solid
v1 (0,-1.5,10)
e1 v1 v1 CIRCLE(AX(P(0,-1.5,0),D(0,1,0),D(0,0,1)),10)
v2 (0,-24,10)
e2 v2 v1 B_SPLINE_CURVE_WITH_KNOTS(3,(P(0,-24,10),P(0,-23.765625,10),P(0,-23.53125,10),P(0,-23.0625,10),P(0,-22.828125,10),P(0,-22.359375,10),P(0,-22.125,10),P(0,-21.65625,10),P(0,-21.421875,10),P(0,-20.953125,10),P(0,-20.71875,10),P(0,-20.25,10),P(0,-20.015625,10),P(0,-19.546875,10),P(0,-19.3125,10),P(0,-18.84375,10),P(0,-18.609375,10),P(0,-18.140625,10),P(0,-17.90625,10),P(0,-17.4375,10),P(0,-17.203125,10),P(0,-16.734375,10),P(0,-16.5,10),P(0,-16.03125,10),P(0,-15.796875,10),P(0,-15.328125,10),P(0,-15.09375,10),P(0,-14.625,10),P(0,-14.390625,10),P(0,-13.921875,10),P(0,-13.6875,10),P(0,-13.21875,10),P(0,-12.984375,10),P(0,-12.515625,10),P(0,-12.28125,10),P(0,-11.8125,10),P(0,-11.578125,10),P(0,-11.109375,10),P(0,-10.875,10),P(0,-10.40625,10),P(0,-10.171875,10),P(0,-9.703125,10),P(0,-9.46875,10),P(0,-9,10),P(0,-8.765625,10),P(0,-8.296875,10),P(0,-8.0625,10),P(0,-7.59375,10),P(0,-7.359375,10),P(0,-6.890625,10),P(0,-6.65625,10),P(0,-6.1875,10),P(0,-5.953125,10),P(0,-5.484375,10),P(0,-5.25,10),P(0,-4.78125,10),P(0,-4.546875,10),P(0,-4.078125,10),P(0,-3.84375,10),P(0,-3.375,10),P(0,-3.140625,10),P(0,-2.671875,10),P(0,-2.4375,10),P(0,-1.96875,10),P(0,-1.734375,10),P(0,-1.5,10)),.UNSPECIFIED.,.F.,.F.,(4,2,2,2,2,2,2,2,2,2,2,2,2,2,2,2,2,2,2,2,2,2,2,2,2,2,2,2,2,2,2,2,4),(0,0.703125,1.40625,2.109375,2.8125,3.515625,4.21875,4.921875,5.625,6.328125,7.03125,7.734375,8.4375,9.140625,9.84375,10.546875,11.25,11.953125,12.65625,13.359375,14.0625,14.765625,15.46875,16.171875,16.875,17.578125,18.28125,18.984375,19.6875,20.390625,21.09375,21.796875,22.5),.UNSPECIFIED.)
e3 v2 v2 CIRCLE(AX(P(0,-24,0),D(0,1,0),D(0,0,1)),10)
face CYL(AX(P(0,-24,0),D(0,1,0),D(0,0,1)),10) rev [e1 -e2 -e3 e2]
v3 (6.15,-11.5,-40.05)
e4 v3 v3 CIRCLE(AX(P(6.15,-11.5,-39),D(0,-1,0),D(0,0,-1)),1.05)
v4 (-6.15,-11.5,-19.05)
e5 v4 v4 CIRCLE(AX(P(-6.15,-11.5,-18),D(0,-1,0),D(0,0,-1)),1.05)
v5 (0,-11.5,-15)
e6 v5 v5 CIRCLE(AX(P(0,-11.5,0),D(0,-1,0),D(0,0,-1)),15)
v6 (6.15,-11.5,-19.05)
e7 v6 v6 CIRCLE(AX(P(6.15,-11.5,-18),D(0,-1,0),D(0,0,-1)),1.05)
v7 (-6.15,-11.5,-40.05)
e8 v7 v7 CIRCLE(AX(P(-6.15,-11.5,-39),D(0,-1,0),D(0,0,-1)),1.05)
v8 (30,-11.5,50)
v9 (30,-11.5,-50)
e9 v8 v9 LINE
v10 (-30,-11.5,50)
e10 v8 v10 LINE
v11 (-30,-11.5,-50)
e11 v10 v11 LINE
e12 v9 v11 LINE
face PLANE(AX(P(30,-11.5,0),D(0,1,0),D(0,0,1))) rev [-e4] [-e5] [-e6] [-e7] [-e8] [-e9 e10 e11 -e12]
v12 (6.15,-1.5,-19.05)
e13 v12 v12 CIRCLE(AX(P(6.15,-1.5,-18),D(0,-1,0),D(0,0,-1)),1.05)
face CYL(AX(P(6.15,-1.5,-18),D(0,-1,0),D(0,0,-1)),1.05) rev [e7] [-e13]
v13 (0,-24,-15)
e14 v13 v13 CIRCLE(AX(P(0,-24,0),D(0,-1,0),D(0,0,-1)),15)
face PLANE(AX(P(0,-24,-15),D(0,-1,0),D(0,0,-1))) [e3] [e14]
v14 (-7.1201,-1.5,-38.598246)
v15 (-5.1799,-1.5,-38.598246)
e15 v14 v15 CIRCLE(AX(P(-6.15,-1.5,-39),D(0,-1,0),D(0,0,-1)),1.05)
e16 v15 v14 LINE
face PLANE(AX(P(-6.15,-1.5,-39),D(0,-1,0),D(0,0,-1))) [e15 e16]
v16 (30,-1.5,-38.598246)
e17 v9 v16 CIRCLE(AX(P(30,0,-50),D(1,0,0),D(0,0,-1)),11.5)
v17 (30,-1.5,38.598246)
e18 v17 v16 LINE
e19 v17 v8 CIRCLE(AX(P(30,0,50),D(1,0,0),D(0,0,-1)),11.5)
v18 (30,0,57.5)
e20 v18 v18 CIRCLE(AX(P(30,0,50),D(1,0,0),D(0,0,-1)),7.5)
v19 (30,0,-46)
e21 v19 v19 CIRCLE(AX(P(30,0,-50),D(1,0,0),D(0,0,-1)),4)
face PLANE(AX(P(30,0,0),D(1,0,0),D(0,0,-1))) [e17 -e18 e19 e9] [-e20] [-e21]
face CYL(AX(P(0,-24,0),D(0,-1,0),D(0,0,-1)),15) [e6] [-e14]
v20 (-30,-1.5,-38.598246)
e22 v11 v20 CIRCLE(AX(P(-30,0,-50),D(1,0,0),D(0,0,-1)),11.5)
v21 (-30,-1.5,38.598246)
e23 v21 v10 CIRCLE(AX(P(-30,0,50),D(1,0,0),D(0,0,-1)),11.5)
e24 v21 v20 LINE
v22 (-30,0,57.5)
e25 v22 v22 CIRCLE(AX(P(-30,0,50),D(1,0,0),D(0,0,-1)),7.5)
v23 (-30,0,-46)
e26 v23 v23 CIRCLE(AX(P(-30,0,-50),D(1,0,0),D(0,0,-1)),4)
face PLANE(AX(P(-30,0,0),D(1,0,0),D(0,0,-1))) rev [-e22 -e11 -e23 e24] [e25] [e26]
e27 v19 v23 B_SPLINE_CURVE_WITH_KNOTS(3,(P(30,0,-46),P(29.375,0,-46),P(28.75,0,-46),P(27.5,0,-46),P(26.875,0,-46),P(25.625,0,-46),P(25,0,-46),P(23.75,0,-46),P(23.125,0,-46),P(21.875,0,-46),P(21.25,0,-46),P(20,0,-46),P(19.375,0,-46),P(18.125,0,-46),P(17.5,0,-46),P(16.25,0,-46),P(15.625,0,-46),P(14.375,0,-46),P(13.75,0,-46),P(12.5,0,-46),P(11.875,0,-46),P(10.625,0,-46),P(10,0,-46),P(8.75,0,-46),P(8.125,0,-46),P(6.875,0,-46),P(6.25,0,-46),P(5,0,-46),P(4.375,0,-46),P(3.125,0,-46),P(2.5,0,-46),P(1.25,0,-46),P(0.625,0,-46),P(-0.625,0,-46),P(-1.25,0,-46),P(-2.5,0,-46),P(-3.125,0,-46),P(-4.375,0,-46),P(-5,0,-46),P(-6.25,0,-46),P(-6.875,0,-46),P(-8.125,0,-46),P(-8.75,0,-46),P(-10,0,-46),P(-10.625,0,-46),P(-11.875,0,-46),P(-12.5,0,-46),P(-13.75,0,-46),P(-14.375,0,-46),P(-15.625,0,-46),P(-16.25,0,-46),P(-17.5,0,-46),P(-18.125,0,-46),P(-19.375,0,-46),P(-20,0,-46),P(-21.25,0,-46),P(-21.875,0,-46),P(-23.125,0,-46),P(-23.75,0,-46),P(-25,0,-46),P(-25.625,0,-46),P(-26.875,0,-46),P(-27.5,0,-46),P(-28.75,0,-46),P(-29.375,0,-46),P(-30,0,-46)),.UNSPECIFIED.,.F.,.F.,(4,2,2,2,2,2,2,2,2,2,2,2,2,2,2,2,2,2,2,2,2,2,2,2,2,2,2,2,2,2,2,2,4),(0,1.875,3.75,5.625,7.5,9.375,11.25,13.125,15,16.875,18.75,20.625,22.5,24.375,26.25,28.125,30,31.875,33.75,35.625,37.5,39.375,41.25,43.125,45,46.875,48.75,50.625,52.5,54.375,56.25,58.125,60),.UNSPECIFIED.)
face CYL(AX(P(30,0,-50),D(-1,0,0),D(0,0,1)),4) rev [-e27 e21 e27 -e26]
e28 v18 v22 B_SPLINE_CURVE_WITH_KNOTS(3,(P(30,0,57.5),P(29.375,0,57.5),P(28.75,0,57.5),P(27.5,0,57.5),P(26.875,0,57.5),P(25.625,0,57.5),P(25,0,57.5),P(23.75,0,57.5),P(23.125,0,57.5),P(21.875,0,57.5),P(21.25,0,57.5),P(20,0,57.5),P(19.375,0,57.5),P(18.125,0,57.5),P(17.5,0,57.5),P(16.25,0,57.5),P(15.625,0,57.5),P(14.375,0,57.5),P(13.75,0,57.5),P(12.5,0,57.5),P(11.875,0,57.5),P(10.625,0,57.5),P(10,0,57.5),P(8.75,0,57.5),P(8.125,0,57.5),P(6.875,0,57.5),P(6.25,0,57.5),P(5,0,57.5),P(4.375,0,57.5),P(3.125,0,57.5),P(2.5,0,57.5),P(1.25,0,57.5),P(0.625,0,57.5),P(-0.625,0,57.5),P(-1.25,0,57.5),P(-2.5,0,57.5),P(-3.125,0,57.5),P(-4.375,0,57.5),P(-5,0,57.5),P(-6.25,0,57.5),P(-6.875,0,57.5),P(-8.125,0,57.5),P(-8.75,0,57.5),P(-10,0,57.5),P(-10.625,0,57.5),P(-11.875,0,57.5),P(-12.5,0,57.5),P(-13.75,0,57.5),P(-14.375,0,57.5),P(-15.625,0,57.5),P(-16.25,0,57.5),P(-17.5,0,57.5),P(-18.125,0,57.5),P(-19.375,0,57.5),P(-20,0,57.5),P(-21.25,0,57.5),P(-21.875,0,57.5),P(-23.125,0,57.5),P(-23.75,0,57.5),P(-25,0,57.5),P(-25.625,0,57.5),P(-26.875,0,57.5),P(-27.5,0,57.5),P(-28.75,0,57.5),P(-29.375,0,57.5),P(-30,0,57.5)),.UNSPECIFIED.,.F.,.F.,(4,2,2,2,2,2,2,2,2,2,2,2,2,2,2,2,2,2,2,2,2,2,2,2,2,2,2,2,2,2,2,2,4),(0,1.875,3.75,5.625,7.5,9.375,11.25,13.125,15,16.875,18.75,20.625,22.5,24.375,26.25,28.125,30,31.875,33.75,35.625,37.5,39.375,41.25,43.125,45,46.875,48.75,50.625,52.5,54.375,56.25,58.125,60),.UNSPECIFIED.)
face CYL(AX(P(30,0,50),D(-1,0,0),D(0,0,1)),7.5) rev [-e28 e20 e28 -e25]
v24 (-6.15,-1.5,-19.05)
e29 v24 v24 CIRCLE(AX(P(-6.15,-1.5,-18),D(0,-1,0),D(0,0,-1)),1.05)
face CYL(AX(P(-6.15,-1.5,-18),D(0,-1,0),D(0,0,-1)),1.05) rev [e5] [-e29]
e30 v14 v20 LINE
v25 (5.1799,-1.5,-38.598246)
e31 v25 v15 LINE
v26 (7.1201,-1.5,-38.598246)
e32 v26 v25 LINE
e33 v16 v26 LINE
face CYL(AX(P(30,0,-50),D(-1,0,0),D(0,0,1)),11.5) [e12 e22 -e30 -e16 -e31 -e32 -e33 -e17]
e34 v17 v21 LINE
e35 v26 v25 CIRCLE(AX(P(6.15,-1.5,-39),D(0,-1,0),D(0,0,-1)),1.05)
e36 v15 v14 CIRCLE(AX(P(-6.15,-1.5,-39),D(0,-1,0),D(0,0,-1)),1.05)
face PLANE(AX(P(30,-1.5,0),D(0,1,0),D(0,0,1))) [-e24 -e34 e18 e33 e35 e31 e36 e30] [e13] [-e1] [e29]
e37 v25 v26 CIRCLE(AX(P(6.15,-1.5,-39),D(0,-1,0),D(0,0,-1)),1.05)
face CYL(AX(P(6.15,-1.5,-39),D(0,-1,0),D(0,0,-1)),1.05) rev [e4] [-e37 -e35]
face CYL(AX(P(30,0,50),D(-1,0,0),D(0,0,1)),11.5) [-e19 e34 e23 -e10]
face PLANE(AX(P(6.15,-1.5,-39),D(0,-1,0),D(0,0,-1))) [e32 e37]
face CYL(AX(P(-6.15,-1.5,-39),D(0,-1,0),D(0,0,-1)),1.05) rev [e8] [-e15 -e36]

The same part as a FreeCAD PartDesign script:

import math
import FreeCAD as App
import Part
import Sketcher
Q = App.Units.Quantity


def add_polygon(sketch, points):
    """Adds a closed chain of lines whose ends are joined by coincident constraints."""
    first, n = sketch.GeometryCount, len(points)
    for a, b in zip(points, points[1:] + points[:1]):
        sketch.addGeometry(Part.LineSegment(App.Vector(*a, 0), App.Vector(*b, 0)), False)
    for i in range(n):
        sketch.addConstraint(Sketcher.Constraint("Coincident", first + i, 2, first + (i + 1) % n, 1))

doc = App.newDocument("Part")
body = doc.addObject("PartDesign::Body", "Body")

# Sketch on YZ plane
sketch1 = body.newObject("Sketcher::SketchObject", "Sketch")
sketch1.AttachmentSupport = (doc.getObject("YZ_Plane"), [""])
sketch1.MapMode = "FlatFace"
sketch1.addGeometry([
    Part.LineSegment(App.Vector(-11.5, 50, 0), App.Vector(-11.5, -50, 0)),  # 0
    Part.ArcOfCircle(Part.Circle(App.Vector(0, -50, 0), App.Vector(0, 0, 1), 11.5), math.radians(180), math.radians(457.494717)),  # 1
    Part.LineSegment(App.Vector(-1.5, -38.598246, 0), App.Vector(-1.5, 38.598246, 0)),  # 2
    Part.ArcOfCircle(Part.Circle(App.Vector(0, 50, 0), App.Vector(0, 0, 1), 11.5), math.radians(-97.494717), math.radians(180)),  # 3
    Part.Circle(App.Vector(0, 50, 0), App.Vector(0, 0, 1), 7.5),  # 4
    Part.Circle(App.Vector(0, -50, 0), App.Vector(0, 0, 1), 4),  # 5
], False)
sketch1.addConstraint([
    Sketcher.Constraint("Tangent", 0, 2, 1, 1),
    Sketcher.Constraint("Coincident", 1, 2, 2, 1),
    Sketcher.Constraint("Coincident", 2, 2, 3, 1),
    Sketcher.Constraint("Tangent", 3, 2, 0, 1),
    Sketcher.Constraint("Vertical", 0),
    Sketcher.Constraint("Vertical", 2),
    Sketcher.Constraint("Coincident", 4, 3, 3, 3),
    Sketcher.Constraint("Coincident", 5, 3, 1, 3),
    Sketcher.Constraint("Equal", 1, 3),
    Sketcher.Constraint("Symmetric", 1, 3, 3, 3, -1, 1),
    Sketcher.Constraint("Diameter", 4, Q("15 mm")),
    Sketcher.Constraint("Diameter", 5, Q("8 mm")),
    Sketcher.Constraint("Radius", 1, Q("11.5 mm")),
    Sketcher.Constraint("DistanceY", 0, 2, 0, 1, Q("100 mm")),
    Sketcher.Constraint("DistanceX", 0, 2, 1, 2, Q("10 mm")),
])
pad1 = body.newObject("PartDesign::Pad", "Pad")
pad1.Profile = sketch1
pad1.Length = 60
pad1.Midplane = True

# Sketch on YZ plane
sketch2 = body.newObject("Sketcher::SketchObject", "Sketch001")
sketch2.AttachmentSupport = (doc.getObject("YZ_Plane"), [""])
sketch2.MapMode = "FlatFace"
add_polygon(sketch2, [(-11.5, 0), (-24, 0), (-24, -15), (-11.5, -15)])  # lines 0-3
sketch2.addConstraint([
    Sketcher.Constraint("Horizontal", 0),
    Sketcher.Constraint("Vertical", 1),
    Sketcher.Constraint("Horizontal", 2),
    Sketcher.Constraint("Vertical", 3),
    Sketcher.Constraint("PointOnObject", 0, 2, -1),
    Sketcher.Constraint("DistanceY", 1, 2, 1, 1, Q("15 mm")),
    Sketcher.Constraint("DistanceX", 0, 2, 0, 1, Q("12.5 mm")),
    Sketcher.Constraint("DistanceX", 0, 2, -1, 1, Q("24 mm")),
])
revolution = body.newObject("PartDesign::Revolution", "Revolution")
revolution.Profile = sketch2
revolution.ReferenceAxis = (sketch2, ["H_Axis"])
revolution.Angle = 360

# Sketch on XZ plane
sketch3 = body.newObject("Sketcher::SketchObject", "Sketch002")
sketch3.AttachmentSupport = (doc.getObject("XZ_Plane"), [""])
sketch3.MapMode = "FlatFace"
sketch3.AttachmentOffset = App.Placement(App.Vector(0, 0, 1.5), App.Rotation())
sketch3.addGeometry(Part.Circle(App.Vector(0, 0, 0), App.Vector(0, 0, 1), 10), False)
sketch3.addConstraint([
    Sketcher.Constraint("Coincident", 0, 3, -1, 1),
    Sketcher.Constraint("Diameter", 0, Q("20 mm")),
])
pocket1 = body.newObject("PartDesign::Pocket", "Pocket")
pocket1.Profile = sketch3
pocket1.Type = "ThroughAll"
pocket1.Reversed = True

# Sketch on XZ plane
sketch4 = body.newObject("Sketcher::SketchObject", "Sketch003")
sketch4.AttachmentSupport = (doc.getObject("XZ_Plane"), [""])
sketch4.MapMode = "FlatFace"
sketch4.AttachmentOffset = App.Placement(App.Vector(0, 0, 11.5), App.Rotation())
sketch4.addGeometry([
    Part.Circle(App.Vector(-6.15, -18, 0), App.Vector(0, 0, 1), 1.05),
    Part.Circle(App.Vector(-6.15, -39, 0), App.Vector(0, 0, 1), 1.05),
    Part.Circle(App.Vector(6.15, -18, 0), App.Vector(0, 0, 1), 1.05),
    Part.Circle(App.Vector(6.15, -39, 0), App.Vector(0, 0, 1), 1.05),
], False)
sketch4.addConstraint([
    Sketcher.Constraint("Equal", 0, 1),
    Sketcher.Constraint("Equal", 1, 2),
    Sketcher.Constraint("Equal", 2, 3),
    Sketcher.Constraint("Symmetric", 0, 3, 2, 3, -2),
    Sketcher.Constraint("Symmetric", 1, 3, 3, 3, -2),
    Sketcher.Constraint("Vertical", 0, 3, 1, 3),
    Sketcher.Constraint("Diameter", 0, Q("2.1 mm")),
    Sketcher.Constraint("DistanceY", 0, 3, -1, 1, Q("18 mm")),
    Sketcher.Constraint("DistanceY", 1, 3, -1, 1, Q("39 mm")),
    Sketcher.Constraint("DistanceX", 0, 3, 2, 3, Q("12.3 mm")),
])
pocket2 = body.newObject("PartDesign::Pocket", "Pocket001")
pocket2.Profile = sketch4
pocket2.Length = 10

doc.recompute()
